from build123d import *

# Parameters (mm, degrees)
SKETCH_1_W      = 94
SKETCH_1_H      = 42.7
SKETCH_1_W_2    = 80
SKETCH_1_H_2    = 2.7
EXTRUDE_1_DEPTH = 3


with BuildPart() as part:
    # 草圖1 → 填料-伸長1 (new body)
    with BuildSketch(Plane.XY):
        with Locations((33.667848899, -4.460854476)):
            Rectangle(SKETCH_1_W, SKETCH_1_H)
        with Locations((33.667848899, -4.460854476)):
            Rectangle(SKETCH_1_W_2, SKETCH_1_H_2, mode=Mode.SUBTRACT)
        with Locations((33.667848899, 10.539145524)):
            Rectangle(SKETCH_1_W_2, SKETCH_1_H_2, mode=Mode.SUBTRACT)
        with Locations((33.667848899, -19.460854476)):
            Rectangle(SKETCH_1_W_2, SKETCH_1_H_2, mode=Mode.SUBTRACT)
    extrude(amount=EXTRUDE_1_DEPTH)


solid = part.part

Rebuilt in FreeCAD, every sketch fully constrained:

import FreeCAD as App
import Part
import Sketcher
Q = App.Units.Quantity


def add_polygon(sketch, points):
    """Adds a closed chain of lines whose ends are joined by coincident constraints."""
    first, n = sketch.GeometryCount, len(points)
    for a, b in zip(points, points[1:] + points[:1]):
        sketch.addGeometry(Part.LineSegment(App.Vector(*a, 0), App.Vector(*b, 0)), False)
    for i in range(n):
        sketch.addConstraint(Sketcher.Constraint("Coincident", first + i, 2, first + (i + 1) % n, 1))

doc = App.newDocument("Part")
body = doc.addObject("PartDesign::Body", "Body")

# Sketch on XY plane
sketch1 = doc.addObject("Sketcher::SketchObject", "Sketch")
body.addObject(sketch1)
sketch1.AttachmentSupport = (doc.XY_Plane, [""])
sketch1.MapMode = "FlatFace"
add_polygon(sketch1, [(-13.3, 16.9), (-13.3, -25.8), (80.7, -25.8), (80.7, 16.9)])  # lines 0-3
add_polygon(sketch1, [(73.7, -20.8), (-6.3, -20.8), (-6.3, -18.1), (73.7, -18.1)])  # lines 4-7
add_polygon(sketch1, [(73.7, -5.8), (-6.3, -5.8), (-6.3, -3.1), (73.7, -3.1)])  # lines 8-11
add_polygon(sketch1, [(73.7, 9.2), (-6.3, 9.2), (-6.3, 11.9), (73.7, 11.9)])  # lines 12-15
sketch1.addConstraint(Sketcher.Constraint("Vertical", 0))
sketch1.addConstraint(Sketcher.Constraint("Horizontal", 1))
sketch1.addConstraint(Sketcher.Constraint("Vertical", 2))
sketch1.addConstraint(Sketcher.Constraint("Horizontal", 3))
sketch1.addConstraint(Sketcher.Constraint("Horizontal", 4))
sketch1.addConstraint(Sketcher.Constraint("Vertical", 5))
sketch1.addConstraint(Sketcher.Constraint("Horizontal", 6))
sketch1.addConstraint(Sketcher.Constraint("Vertical", 7))
sketch1.addConstraint(Sketcher.Constraint("Horizontal", 8))
sketch1.addConstraint(Sketcher.Constraint("Vertical", 9))
sketch1.addConstraint(Sketcher.Constraint("Horizontal", 10))
sketch1.addConstraint(Sketcher.Constraint("Vertical", 11))
sketch1.addConstraint(Sketcher.Constraint("Horizontal", 12))
sketch1.addConstraint(Sketcher.Constraint("Vertical", 13))
sketch1.addConstraint(Sketcher.Constraint("Horizontal", 14))
sketch1.addConstraint(Sketcher.Constraint("Vertical", 15))
sketch1.addConstraint(Sketcher.Constraint("Vertical", 5, 2, 8, 2))
sketch1.addConstraint(Sketcher.Constraint("Vertical", 7, 2, 10, 2))
sketch1.addConstraint(Sketcher.Constraint("Vertical", 9, 2, 12, 2))
sketch1.addConstraint(Sketcher.Constraint("Vertical", 11, 2, 14, 2))
sketch1.addConstraint(Sketcher.Constraint("Equal", 7, 9))
sketch1.addConstraint(Sketcher.Constraint("Equal", 11, 13))
sketch1.addConstraint(Sketcher.Constraint("DistanceX", 1, 1, 1, 2, Q("94 mm")))
sketch1.addConstraint(Sketcher.Constraint("DistanceX", 4, 2, 4, 1, Q("80 mm")))
sketch1.addConstraint(Sketcher.Constraint("DistanceY", 0, 2, 0, 1, Q("42.7 mm")))
sketch1.addConstraint(Sketcher.Constraint("DistanceY", 5, 1, 5, 2, Q("2.7 mm")))
sketch1.addConstraint(Sketcher.Constraint("DistanceX", 0, 2, 4, 2, Q("7 mm")))
sketch1.addConstraint(Sketcher.Constraint("DistanceY", 0, 2, 4, 2, Q("5 mm")))
sketch1.addConstraint(Sketcher.Constraint("DistanceY", 4, 2, 8, 2, Q("15 mm")))
sketch1.addConstraint(Sketcher.Constraint("DistanceY", 8, 2, 12, 2, Q("15 mm")))
sketch1.addConstraint(Sketcher.Constraint("DistanceX", 0, 2, -1, 1, Q("13.332151 mm")))
sketch1.addConstraint(Sketcher.Constraint("DistanceY", 0, 2, -1, 1, Q("25.810854 mm")))
pad1 = doc.addObject("PartDesign::Pad", "Pad")
body.addObject(pad1)
pad1.Profile = sketch1
pad1.Length = 3

doc.recompute()
